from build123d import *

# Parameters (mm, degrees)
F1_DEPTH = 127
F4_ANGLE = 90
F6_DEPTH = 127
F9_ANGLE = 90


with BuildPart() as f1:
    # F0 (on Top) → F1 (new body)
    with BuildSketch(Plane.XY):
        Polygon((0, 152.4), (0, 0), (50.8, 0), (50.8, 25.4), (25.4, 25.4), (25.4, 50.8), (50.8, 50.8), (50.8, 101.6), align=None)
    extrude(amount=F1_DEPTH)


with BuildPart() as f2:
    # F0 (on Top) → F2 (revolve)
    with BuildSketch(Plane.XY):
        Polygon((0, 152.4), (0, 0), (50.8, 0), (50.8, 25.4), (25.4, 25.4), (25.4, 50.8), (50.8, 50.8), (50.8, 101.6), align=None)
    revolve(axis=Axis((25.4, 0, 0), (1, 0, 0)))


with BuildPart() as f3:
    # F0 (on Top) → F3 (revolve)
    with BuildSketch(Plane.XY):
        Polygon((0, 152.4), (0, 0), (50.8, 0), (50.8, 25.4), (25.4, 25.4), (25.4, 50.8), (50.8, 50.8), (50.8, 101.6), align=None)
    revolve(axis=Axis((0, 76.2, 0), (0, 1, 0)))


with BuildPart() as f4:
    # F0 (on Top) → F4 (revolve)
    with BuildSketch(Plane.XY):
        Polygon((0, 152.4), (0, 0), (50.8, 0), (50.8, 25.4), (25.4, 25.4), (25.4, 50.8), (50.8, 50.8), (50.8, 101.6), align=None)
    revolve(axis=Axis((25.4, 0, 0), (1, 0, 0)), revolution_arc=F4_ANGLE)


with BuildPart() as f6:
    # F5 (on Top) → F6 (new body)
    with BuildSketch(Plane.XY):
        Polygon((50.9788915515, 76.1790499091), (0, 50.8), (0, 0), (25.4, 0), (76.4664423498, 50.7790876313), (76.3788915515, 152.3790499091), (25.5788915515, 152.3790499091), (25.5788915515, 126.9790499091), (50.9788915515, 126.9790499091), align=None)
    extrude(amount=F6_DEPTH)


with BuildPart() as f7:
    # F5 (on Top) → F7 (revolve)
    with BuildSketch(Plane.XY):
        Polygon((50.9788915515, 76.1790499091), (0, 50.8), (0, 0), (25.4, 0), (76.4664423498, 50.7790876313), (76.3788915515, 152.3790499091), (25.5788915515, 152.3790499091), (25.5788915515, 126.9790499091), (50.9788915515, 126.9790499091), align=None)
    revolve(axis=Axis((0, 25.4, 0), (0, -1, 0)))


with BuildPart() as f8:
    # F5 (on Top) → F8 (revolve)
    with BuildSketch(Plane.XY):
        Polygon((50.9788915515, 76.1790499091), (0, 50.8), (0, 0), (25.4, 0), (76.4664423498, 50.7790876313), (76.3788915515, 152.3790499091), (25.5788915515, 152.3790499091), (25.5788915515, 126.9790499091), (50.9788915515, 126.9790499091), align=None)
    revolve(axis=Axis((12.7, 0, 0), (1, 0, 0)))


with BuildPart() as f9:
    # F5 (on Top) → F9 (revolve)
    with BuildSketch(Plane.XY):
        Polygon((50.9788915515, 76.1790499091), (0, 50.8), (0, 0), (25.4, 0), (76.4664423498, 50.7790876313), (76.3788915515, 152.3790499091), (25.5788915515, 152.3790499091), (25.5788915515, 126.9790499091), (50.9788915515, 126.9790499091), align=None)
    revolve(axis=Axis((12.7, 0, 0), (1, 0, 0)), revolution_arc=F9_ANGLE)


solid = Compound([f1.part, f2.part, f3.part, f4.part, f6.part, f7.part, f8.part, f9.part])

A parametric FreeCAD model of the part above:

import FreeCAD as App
import Part
import Sketcher

V = App.Vector
Q = App.Units.Quantity


def add_polygon(sketch, points):
    """Adds a closed chain of lines whose ends are joined by coincident constraints."""
    first, n = sketch.GeometryCount, len(points)
    for a, b in zip(points, points[1:] + points[:1]):
        sketch.addGeometry(Part.LineSegment(App.Vector(*a, 0), App.Vector(*b, 0)), False)
    for i in range(n):
        sketch.addConstraint(Sketcher.Constraint("Coincident", first + i, 2, first + (i + 1) % n, 1))

doc = App.newDocument("Part")
body = doc.addObject("PartDesign::Body", "Body")

# Sketch on XY plane
sketch1 = doc.addObject("Sketcher::SketchObject", "Sketch")
body.addObject(sketch1)
sketch1.AttachmentSupport = (doc.XY_Plane, [""])
sketch1.MapMode = "FlatFace"
add_polygon(sketch1, [(0, 152), (0, 0), (51, 0), (51, 25), (25, 25), (25, 51), (51, 51), (51, 102)])  # lines 0-7
sketch1.addConstraint(Sketcher.Constraint("Vertical", 0))
sketch1.addConstraint(Sketcher.Constraint("Horizontal", 1))
sketch1.addConstraint(Sketcher.Constraint("Vertical", 2))
sketch1.addConstraint(Sketcher.Constraint("Horizontal", 3))
sketch1.addConstraint(Sketcher.Constraint("Vertical", 4))
sketch1.addConstraint(Sketcher.Constraint("Horizontal", 5))
sketch1.addConstraint(Sketcher.Constraint("Vertical", 6))
sketch1.addConstraint(Sketcher.Constraint("Coincident", 0, 2, -1, 1))
sketch1.addConstraint(Sketcher.Constraint("Vertical", 2, 2, 5, 2))
sketch1.addConstraint(Sketcher.Constraint("Equal", 5, 2))
sketch1.addConstraint(Sketcher.Constraint("Equal", 2, 4))
sketch1.addConstraint(Sketcher.Constraint("Equal", 1, 6))
sketch1.addConstraint(Sketcher.Constraint("DistanceX", 1, 1, 1, 2, Q("2 in")))
sketch1.addConstraint(Sketcher.Constraint("DistanceX", 3, 2, 3, 1, Q("1 in")))
sketch1.addConstraint(Sketcher.Constraint("DistanceY", 0, 2, 0, 1, Q("6 in")))
pad1 = doc.addObject("PartDesign::Pad", "Pad")
body.addObject(pad1)
pad1.Profile = sketch1
pad1.Length = Q("5 in")
body2 = doc.addObject("PartDesign::Body", "Body001")

# Sketch on XY plane
sketch2 = doc.addObject("Sketcher::SketchObject", "Sketch001")
body2.addObject(sketch2)
sketch2.AttachmentSupport = (doc.getObject("XY_Plane001"), [""])
sketch2.MapMode = "FlatFace"
add_polygon(sketch2, [(0, 152), (0, 0), (51, 0), (51, 25), (25, 25), (25, 51), (51, 51), (51, 102)])  # lines 0-7
sketch2.addConstraint(Sketcher.Constraint("Vertical", 0))
sketch2.addConstraint(Sketcher.Constraint("Horizontal", 1))
sketch2.addConstraint(Sketcher.Constraint("Vertical", 2))
sketch2.addConstraint(Sketcher.Constraint("Horizontal", 3))
sketch2.addConstraint(Sketcher.Constraint("Vertical", 4))
sketch2.addConstraint(Sketcher.Constraint("Horizontal", 5))
sketch2.addConstraint(Sketcher.Constraint("Vertical", 6))
sketch2.addConstraint(Sketcher.Constraint("Coincident", 0, 2, -1, 1))
sketch2.addConstraint(Sketcher.Constraint("Vertical", 2, 2, 5, 2))
sketch2.addConstraint(Sketcher.Constraint("Equal", 5, 2))
sketch2.addConstraint(Sketcher.Constraint("Equal", 2, 4))
sketch2.addConstraint(Sketcher.Constraint("Equal", 1, 6))
sketch2.addConstraint(Sketcher.Constraint("DistanceX", 1, 1, 1, 2, Q("2 in")))
sketch2.addConstraint(Sketcher.Constraint("DistanceX", 3, 2, 3, 1, Q("1 in")))
sketch2.addConstraint(Sketcher.Constraint("DistanceY", 0, 2, 0, 1, Q("6 in")))
revolution = doc.addObject("PartDesign::Revolution", "Revolution")
body2.addObject(revolution)
revolution.Profile = sketch2
revolution.ReferenceAxis = (sketch2, ["H_Axis"])
revolution.Angle = 360
body3 = doc.addObject("PartDesign::Body", "Body002")

# Sketch on XY plane
sketch3 = doc.addObject("Sketcher::SketchObject", "Sketch002")
body3.addObject(sketch3)
sketch3.AttachmentSupport = (doc.getObject("XY_Plane002"), [""])
sketch3.MapMode = "FlatFace"
add_polygon(sketch3, [(0, 152), (0, 0), (51, 0), (51, 25), (25, 25), (25, 51), (51, 51), (51, 102)])  # lines 0-7
sketch3.addConstraint(Sketcher.Constraint("Vertical", 0))
sketch3.addConstraint(Sketcher.Constraint("Horizontal", 1))
sketch3.addConstraint(Sketcher.Constraint("Vertical", 2))
sketch3.addConstraint(Sketcher.Constraint("Horizontal", 3))
sketch3.addConstraint(Sketcher.Constraint("Vertical", 4))
sketch3.addConstraint(Sketcher.Constraint("Horizontal", 5))
sketch3.addConstraint(Sketcher.Constraint("Vertical", 6))
sketch3.addConstraint(Sketcher.Constraint("Coincident", 0, 2, -1, 1))
sketch3.addConstraint(Sketcher.Constraint("Vertical", 2, 2, 5, 2))
sketch3.addConstraint(Sketcher.Constraint("Equal", 5, 2))
sketch3.addConstraint(Sketcher.Constraint("Equal", 2, 4))
sketch3.addConstraint(Sketcher.Constraint("Equal", 1, 6))
sketch3.addConstraint(Sketcher.Constraint("DistanceX", 1, 1, 1, 2, Q("2 in")))
sketch3.addConstraint(Sketcher.Constraint("DistanceX", 3, 2, 3, 1, Q("1 in")))
sketch3.addConstraint(Sketcher.Constraint("DistanceY", 0, 2, 0, 1, Q("6 in")))
revolution2 = doc.addObject("PartDesign::Revolution", "Revolution001")
body3.addObject(revolution2)
revolution2.Profile = sketch3
revolution2.ReferenceAxis = (sketch3, ["V_Axis"])
revolution2.Angle = 360
body4 = doc.addObject("PartDesign::Body", "Body003")

# Sketch on XY plane
sketch4 = doc.addObject("Sketcher::SketchObject", "Sketch003")
body4.addObject(sketch4)
sketch4.AttachmentSupport = (doc.getObject("XY_Plane003"), [""])
sketch4.MapMode = "FlatFace"
add_polygon(sketch4, [(0, 152), (0, 0), (51, 0), (51, 25), (25, 25), (25, 51), (51, 51), (51, 102)])  # lines 0-7
sketch4.addConstraint(Sketcher.Constraint("Vertical", 0))
sketch4.addConstraint(Sketcher.Constraint("Horizontal", 1))
sketch4.addConstraint(Sketcher.Constraint("Vertical", 2))
sketch4.addConstraint(Sketcher.Constraint("Horizontal", 3))
sketch4.addConstraint(Sketcher.Constraint("Vertical", 4))
sketch4.addConstraint(Sketcher.Constraint("Horizontal", 5))
sketch4.addConstraint(Sketcher.Constraint("Vertical", 6))
sketch4.addConstraint(Sketcher.Constraint("Coincident", 0, 2, -1, 1))
sketch4.addConstraint(Sketcher.Constraint("Vertical", 2, 2, 5, 2))
sketch4.addConstraint(Sketcher.Constraint("Equal", 5, 2))
sketch4.addConstraint(Sketcher.Constraint("Equal", 2, 4))
sketch4.addConstraint(Sketcher.Constraint("Equal", 1, 6))
sketch4.addConstraint(Sketcher.Constraint("DistanceX", 1, 1, 1, 2, Q("2 in")))
sketch4.addConstraint(Sketcher.Constraint("DistanceX", 3, 2, 3, 1, Q("1 in")))
sketch4.addConstraint(Sketcher.Constraint("DistanceY", 0, 2, 0, 1, Q("6 in")))
revolution3 = doc.addObject("PartDesign::Revolution", "Revolution002")
body4.addObject(revolution3)
revolution3.Profile = sketch4
revolution3.ReferenceAxis = (sketch4, ["H_Axis"])
revolution3.Angle = 90
body5 = doc.addObject("PartDesign::Body", "Body004")

# Sketch on XY plane
sketch5 = doc.addObject("Sketcher::SketchObject", "Sketch004")
body5.addObject(sketch5)
sketch5.AttachmentSupport = (doc.getObject("XY_Plane004"), [""])
sketch5.MapMode = "FlatFace"
add_polygon(sketch5, [(51, 76), (0, 51), (0, 0), (25, 0), (76, 51), (76, 152), (26, 152), (26, 127), (51, 127)])  # lines 0-8
sketch5.addConstraint(Sketcher.Constraint("Vertical", 1))
sketch5.addConstraint(Sketcher.Constraint("Horizontal", 2))
sketch5.addConstraint(Sketcher.Constraint("Horizontal", 5))
sketch5.addConstraint(Sketcher.Constraint("Vertical", 6))
sketch5.addConstraint(Sketcher.Constraint("Horizontal", 7))
sketch5.addConstraint(Sketcher.Constraint("Vertical", 8))
sketch5.addConstraint(Sketcher.Constraint("Coincident", 1, 2, -1, 1))
sketch5.addConstraint(Sketcher.Constraint("Equal", 2, 7))
sketch5.addConstraint(Sketcher.Constraint("Equal", 5, 1))
sketch5.addConstraint(Sketcher.Constraint("Equal", 7, 6))
sketch5.addConstraint(Sketcher.Constraint("Equal", 1, 8))
sketch5.addConstraint(Sketcher.Constraint("DistanceX", 2, 1, 2, 2, Q("1 in")))
sketch5.addConstraint(Sketcher.Constraint("DistanceX", 5, 2, 5, 1, Q("2 in")))
sketch5.addConstraint(Sketcher.Constraint("Distance", 4, Q("4 in")))
sketch5.addConstraint(Sketcher.Constraint("Distance", 0, 56.946849))
sketch5.addConstraint(Sketcher.Constraint("Distance", 3, 72.015952))
sketch5.addConstraint(Sketcher.Constraint("DistanceX", -1, 1, 4, 2, 76.378892))
pad2 = doc.addObject("PartDesign::Pad", "Pad001")
body5.addObject(pad2)
pad2.Profile = sketch5
pad2.Length = Q("5 in")
body6 = doc.addObject("PartDesign::Body", "Body005")

# Sketch on XY plane
sketch6 = doc.addObject("Sketcher::SketchObject", "Sketch005")
body6.addObject(sketch6)
sketch6.AttachmentSupport = (doc.getObject("XY_Plane005"), [""])
sketch6.MapMode = "FlatFace"
add_polygon(sketch6, [(51, 76), (0, 51), (0, 0), (25, 0), (76, 51), (76, 152), (26, 152), (26, 127), (51, 127)])  # lines 0-8
sketch6.addConstraint(Sketcher.Constraint("Vertical", 1))
sketch6.addConstraint(Sketcher.Constraint("Horizontal", 2))
sketch6.addConstraint(Sketcher.Constraint("Horizontal", 5))
sketch6.addConstraint(Sketcher.Constraint("Vertical", 6))
sketch6.addConstraint(Sketcher.Constraint("Horizontal", 7))
sketch6.addConstraint(Sketcher.Constraint("Vertical", 8))
sketch6.addConstraint(Sketcher.Constraint("Coincident", 1, 2, -1, 1))
sketch6.addConstraint(Sketcher.Constraint("Equal", 2, 7))
sketch6.addConstraint(Sketcher.Constraint("Equal", 5, 1))
sketch6.addConstraint(Sketcher.Constraint("Equal", 7, 6))
sketch6.addConstraint(Sketcher.Constraint("Equal", 1, 8))
sketch6.addConstraint(Sketcher.Constraint("DistanceX", 2, 1, 2, 2, Q("1 in")))
sketch6.addConstraint(Sketcher.Constraint("DistanceX", 5, 2, 5, 1, Q("2 in")))
sketch6.addConstraint(Sketcher.Constraint("Distance", 4, Q("4 in")))
sketch6.addConstraint(Sketcher.Constraint("Distance", 0, 56.946849))
sketch6.addConstraint(Sketcher.Constraint("Distance", 3, 72.015952))
sketch6.addConstraint(Sketcher.Constraint("DistanceX", -1, 1, 4, 2, 76.378892))
revolution4 = doc.addObject("PartDesign::Revolution", "Revolution003")
body6.addObject(revolution4)
revolution4.Profile = sketch6
revolution4.ReferenceAxis = (sketch6, ["V_Axis"])
revolution4.Angle = 360
body7 = doc.addObject("PartDesign::Body", "Body006")

# Sketch on XY plane
sketch7 = doc.addObject("Sketcher::SketchObject", "Sketch006")
body7.addObject(sketch7)
sketch7.AttachmentSupport = (doc.getObject("XY_Plane006"), [""])
sketch7.MapMode = "FlatFace"
add_polygon(sketch7, [(51, 76), (0, 51), (0, 0), (25, 0), (76, 51), (76, 152), (26, 152), (26, 127), (51, 127)])  # lines 0-8
sketch7.addConstraint(Sketcher.Constraint("Vertical", 1))
sketch7.addConstraint(Sketcher.Constraint("Horizontal", 2))
sketch7.addConstraint(Sketcher.Constraint("Horizontal", 5))
sketch7.addConstraint(Sketcher.Constraint("Vertical", 6))
sketch7.addConstraint(Sketcher.Constraint("Horizontal", 7))
sketch7.addConstraint(Sketcher.Constraint("Vertical", 8))
sketch7.addConstraint(Sketcher.Constraint("Coincident", 1, 2, -1, 1))
sketch7.addConstraint(Sketcher.Constraint("Equal", 2, 7))
sketch7.addConstraint(Sketcher.Constraint("Equal", 5, 1))
sketch7.addConstraint(Sketcher.Constraint("Equal", 7, 6))
sketch7.addConstraint(Sketcher.Constraint("Equal", 1, 8))
sketch7.addConstraint(Sketcher.Constraint("DistanceX", 2, 1, 2, 2, Q("1 in")))
sketch7.addConstraint(Sketcher.Constraint("DistanceX", 5, 2, 5, 1, Q("2 in")))
sketch7.addConstraint(Sketcher.Constraint("Distance", 4, Q("4 in")))
sketch7.addConstraint(Sketcher.Constraint("Distance", 0, 56.946849))
sketch7.addConstraint(Sketcher.Constraint("Distance", 3, 72.015952))
sketch7.addConstraint(Sketcher.Constraint("DistanceX", -1, 1, 4, 2, 76.378892))
revolution5 = doc.addObject("PartDesign::Revolution", "Revolution004")
body7.addObject(revolution5)
revolution5.Profile = sketch7
revolution5.ReferenceAxis = (sketch7, ["H_Axis"])
revolution5.Angle = 360
body8 = doc.addObject("PartDesign::Body", "Body007")

# Sketch on XY plane
sketch8 = doc.addObject("Sketcher::SketchObject", "Sketch007")
body8.addObject(sketch8)
sketch8.AttachmentSupport = (doc.getObject("XY_Plane007"), [""])
sketch8.MapMode = "FlatFace"
add_polygon(sketch8, [(51, 76), (0, 51), (0, 0), (25, 0), (76, 51), (76, 152), (26, 152), (26, 127), (51, 127)])  # lines 0-8
sketch8.addConstraint(Sketcher.Constraint("Vertical", 1))
sketch8.addConstraint(Sketcher.Constraint("Horizontal", 2))
sketch8.addConstraint(Sketcher.Constraint("Horizontal", 5))
sketch8.addConstraint(Sketcher.Constraint("Vertical", 6))
sketch8.addConstraint(Sketcher.Constraint("Horizontal", 7))
sketch8.addConstraint(Sketcher.Constraint("Vertical", 8))
sketch8.addConstraint(Sketcher.Constraint("Coincident", 1, 2, -1, 1))
sketch8.addConstraint(Sketcher.Constraint("Equal", 2, 7))
sketch8.addConstraint(Sketcher.Constraint("Equal", 5, 1))
sketch8.addConstraint(Sketcher.Constraint("Equal", 7, 6))
sketch8.addConstraint(Sketcher.Constraint("Equal", 1, 8))
sketch8.addConstraint(Sketcher.Constraint("DistanceX", 2, 1, 2, 2, Q("1 in")))
sketch8.addConstraint(Sketcher.Constraint("DistanceX", 5, 2, 5, 1, Q("2 in")))
sketch8.addConstraint(Sketcher.Constraint("Distance", 4, Q("4 in")))
sketch8.addConstraint(Sketcher.Constraint("Distance", 0, 56.946849))
sketch8.addConstraint(Sketcher.Constraint("Distance", 3, 72.015952))
sketch8.addConstraint(Sketcher.Constraint("DistanceX", -1, 1, 4, 2, 76.378892))
revolution6 = doc.addObject("PartDesign::Revolution", "Revolution005")
body8.addObject(revolution6)
revolution6.Profile = sketch8
revolution6.ReferenceAxis = (sketch8, ["H_Axis"])
revolution6.Angle = 90

doc.recompute()
